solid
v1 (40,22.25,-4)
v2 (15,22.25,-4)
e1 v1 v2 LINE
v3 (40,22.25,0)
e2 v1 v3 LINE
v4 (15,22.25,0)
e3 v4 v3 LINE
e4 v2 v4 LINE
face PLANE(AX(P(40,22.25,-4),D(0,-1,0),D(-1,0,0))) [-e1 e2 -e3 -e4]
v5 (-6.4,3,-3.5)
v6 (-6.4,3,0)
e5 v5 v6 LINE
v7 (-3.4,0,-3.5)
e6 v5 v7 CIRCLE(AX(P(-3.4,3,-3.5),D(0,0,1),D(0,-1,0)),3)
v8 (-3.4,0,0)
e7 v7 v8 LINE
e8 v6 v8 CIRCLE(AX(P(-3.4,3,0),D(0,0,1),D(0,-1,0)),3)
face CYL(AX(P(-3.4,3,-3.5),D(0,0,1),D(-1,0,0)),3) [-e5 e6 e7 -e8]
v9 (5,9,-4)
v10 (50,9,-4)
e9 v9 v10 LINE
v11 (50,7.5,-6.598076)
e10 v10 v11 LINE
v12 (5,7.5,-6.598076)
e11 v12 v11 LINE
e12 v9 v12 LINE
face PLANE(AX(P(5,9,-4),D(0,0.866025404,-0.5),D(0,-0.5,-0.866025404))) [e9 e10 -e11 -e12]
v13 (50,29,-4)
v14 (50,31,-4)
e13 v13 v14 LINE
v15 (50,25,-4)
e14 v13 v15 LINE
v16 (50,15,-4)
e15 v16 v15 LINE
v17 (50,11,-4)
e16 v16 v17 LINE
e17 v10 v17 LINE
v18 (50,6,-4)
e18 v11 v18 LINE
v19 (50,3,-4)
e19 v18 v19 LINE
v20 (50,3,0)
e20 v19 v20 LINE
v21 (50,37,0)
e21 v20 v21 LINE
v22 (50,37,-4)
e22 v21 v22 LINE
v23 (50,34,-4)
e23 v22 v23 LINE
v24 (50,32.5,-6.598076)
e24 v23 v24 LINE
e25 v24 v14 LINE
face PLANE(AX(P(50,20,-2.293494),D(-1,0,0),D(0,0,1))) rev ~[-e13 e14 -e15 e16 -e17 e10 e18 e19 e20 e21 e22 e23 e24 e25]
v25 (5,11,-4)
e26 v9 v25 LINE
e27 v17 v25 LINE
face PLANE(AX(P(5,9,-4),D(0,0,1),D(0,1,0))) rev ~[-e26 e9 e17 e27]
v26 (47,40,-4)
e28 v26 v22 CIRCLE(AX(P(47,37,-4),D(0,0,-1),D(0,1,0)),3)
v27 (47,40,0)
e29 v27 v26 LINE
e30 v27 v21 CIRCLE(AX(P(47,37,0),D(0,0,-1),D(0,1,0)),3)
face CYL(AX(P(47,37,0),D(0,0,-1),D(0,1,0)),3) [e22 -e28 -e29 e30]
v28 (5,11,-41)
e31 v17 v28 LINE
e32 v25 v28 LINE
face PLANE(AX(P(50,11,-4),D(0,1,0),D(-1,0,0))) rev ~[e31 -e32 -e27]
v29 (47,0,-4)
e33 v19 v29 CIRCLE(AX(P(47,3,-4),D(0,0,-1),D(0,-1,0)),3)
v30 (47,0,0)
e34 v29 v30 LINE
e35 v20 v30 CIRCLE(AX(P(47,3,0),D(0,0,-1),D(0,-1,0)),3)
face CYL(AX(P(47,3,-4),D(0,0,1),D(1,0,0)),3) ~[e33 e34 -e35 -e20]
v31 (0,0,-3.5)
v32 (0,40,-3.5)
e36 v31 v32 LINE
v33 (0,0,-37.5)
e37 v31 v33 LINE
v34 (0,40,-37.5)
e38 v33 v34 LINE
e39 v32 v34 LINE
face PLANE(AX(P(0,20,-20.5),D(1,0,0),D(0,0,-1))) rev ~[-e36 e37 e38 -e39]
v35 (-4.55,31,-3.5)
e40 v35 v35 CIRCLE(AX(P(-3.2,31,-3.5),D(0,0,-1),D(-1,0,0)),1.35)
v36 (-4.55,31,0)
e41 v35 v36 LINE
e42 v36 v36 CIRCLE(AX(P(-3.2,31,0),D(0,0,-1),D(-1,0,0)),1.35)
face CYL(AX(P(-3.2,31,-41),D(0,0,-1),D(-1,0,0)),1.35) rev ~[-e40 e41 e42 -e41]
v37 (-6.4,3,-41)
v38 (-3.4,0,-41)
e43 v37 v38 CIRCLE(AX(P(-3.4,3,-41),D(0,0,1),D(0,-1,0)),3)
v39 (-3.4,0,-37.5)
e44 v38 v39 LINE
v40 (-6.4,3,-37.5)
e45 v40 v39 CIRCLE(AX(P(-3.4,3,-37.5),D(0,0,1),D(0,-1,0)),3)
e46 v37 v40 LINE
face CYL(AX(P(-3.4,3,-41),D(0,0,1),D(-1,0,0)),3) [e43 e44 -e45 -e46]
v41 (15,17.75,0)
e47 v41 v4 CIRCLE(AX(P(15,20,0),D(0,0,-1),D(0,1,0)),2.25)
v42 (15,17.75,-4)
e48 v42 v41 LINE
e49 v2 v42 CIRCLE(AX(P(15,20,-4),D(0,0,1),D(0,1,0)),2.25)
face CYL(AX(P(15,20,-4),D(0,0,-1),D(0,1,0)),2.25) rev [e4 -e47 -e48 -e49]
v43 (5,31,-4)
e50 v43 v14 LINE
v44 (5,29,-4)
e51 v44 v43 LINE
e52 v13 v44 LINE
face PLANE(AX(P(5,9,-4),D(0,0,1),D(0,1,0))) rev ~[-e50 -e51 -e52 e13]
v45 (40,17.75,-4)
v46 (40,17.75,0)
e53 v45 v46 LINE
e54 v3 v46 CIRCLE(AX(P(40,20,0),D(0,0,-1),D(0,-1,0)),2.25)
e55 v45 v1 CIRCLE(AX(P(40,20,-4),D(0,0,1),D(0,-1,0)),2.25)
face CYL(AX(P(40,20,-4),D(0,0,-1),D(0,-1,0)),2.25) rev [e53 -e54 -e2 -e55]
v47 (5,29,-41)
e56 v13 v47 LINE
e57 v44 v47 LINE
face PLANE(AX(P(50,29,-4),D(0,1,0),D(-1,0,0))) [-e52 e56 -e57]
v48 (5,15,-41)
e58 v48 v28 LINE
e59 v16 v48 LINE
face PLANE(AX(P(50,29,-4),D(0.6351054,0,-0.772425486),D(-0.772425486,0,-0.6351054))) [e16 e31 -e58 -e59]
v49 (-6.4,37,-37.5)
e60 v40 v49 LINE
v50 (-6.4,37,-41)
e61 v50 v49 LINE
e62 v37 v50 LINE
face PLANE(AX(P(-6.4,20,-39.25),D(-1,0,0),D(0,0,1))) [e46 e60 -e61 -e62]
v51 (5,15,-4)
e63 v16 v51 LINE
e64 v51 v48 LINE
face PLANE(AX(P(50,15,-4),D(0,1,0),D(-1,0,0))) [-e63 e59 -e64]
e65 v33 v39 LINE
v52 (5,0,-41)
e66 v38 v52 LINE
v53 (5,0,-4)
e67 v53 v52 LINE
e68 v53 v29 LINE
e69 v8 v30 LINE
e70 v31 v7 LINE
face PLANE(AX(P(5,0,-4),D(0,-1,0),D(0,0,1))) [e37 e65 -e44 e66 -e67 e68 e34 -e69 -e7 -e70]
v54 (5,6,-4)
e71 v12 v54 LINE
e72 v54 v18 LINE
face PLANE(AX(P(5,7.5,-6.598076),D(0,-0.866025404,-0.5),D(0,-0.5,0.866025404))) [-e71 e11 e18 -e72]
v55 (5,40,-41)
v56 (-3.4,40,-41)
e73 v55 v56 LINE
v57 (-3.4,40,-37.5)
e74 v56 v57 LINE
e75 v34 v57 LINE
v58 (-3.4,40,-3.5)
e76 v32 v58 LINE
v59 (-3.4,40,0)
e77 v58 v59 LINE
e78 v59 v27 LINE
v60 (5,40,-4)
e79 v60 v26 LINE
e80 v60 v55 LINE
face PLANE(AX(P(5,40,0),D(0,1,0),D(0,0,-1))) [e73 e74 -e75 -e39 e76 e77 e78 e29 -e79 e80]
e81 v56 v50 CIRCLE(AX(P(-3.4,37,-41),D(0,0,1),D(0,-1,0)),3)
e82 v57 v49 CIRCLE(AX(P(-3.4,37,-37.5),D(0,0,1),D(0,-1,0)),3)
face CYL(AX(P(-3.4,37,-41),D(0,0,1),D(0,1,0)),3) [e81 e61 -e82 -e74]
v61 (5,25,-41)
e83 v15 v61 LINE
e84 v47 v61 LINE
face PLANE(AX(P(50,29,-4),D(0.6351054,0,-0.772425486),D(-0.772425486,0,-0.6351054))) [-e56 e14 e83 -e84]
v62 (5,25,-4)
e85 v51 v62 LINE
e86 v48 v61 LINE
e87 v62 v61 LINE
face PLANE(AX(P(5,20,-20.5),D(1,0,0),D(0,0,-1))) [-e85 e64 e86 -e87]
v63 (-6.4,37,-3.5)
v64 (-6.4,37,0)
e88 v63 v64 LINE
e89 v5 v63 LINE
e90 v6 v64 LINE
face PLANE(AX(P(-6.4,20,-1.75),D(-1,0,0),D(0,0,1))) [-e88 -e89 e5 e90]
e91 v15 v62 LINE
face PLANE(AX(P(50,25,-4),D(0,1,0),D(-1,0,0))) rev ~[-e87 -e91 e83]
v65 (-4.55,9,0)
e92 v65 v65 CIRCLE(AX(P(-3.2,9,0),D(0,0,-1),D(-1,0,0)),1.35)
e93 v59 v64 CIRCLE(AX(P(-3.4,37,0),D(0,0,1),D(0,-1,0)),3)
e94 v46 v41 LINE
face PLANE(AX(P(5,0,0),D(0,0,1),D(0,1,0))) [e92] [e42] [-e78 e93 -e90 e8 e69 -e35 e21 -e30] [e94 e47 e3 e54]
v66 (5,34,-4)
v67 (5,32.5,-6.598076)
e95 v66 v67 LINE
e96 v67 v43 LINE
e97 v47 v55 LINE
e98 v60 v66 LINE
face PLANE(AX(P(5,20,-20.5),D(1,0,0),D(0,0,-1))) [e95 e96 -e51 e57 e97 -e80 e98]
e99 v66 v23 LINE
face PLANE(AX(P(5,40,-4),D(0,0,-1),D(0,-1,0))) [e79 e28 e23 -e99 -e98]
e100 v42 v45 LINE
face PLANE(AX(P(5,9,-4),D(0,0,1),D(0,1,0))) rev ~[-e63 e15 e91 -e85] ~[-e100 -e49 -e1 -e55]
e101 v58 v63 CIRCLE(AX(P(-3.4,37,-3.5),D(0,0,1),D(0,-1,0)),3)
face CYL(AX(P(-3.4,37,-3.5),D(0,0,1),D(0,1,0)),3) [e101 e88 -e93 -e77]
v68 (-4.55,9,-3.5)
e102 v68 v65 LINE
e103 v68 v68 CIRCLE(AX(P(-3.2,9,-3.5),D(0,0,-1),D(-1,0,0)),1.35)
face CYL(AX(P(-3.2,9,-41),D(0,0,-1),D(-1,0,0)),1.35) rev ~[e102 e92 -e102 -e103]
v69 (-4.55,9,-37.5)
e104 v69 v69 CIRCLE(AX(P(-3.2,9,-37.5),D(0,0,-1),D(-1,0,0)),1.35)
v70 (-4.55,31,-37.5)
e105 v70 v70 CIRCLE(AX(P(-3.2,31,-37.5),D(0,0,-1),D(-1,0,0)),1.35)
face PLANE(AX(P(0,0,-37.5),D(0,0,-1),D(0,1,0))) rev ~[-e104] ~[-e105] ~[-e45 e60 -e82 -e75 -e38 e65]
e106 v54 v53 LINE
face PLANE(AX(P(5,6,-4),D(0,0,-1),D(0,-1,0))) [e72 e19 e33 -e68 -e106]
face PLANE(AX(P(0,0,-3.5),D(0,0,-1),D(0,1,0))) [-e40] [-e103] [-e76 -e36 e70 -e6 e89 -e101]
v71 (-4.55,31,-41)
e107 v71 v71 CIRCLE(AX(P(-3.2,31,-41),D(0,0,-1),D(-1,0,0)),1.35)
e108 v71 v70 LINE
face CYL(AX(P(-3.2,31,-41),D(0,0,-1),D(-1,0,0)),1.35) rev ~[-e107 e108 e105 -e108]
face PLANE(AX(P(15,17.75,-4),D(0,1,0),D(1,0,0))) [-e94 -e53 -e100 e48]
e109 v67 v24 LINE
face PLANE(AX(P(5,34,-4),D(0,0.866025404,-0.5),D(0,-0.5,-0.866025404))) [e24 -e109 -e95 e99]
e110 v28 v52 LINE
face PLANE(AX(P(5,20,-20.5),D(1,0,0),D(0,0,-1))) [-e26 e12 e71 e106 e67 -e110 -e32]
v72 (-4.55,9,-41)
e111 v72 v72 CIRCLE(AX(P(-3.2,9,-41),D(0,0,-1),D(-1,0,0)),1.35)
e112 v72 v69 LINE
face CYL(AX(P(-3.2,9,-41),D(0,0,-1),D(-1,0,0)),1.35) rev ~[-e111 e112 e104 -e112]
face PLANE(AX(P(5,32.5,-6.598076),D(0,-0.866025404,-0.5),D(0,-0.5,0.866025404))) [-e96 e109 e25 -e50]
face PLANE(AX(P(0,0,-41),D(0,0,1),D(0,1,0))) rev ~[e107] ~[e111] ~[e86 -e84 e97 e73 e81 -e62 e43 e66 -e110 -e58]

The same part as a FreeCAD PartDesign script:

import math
import FreeCAD as App
import Part
import Sketcher

V = App.Vector
Q = App.Units.Quantity


def edges_at(feature, points):
    """Names of the edges that pass closest to the given points."""
    edges = feature.Shape.Edges
    near = lambda p: min(range(len(edges)), key=lambda i: edges[i].distToShape(Part.Vertex(*p))[0])
    return sorted({f"Edge{near(p) + 1}" for p in points})


def add_polygon(sketch, points):
    """Adds a closed chain of lines whose ends are joined by coincident constraints."""
    first, n = sketch.GeometryCount, len(points)
    for a, b in zip(points, points[1:] + points[:1]):
        sketch.addGeometry(Part.LineSegment(App.Vector(*a, 0), App.Vector(*b, 0)), False)
    for i in range(n):
        sketch.addConstraint(Sketcher.Constraint("Coincident", first + i, 2, first + (i + 1) % n, 1))

doc = App.newDocument("Part")
body = doc.addObject("PartDesign::Body", "Body")

# Sketch on YZ plane
sketch1 = doc.addObject("Sketcher::SketchObject", "Sketch")
body.addObject(sketch1)
sketch1.AttachmentSupport = (doc.YZ_Plane, [""])
sketch1.MapMode = "FlatFace"
add_polygon(sketch1, [(40, 0), (0, 0), (0, -41), (40, -41)])  # lines 0-3
sketch1.addConstraint(Sketcher.Constraint("Horizontal", 0))
sketch1.addConstraint(Sketcher.Constraint("Vertical", 1))
sketch1.addConstraint(Sketcher.Constraint("Horizontal", 2))
sketch1.addConstraint(Sketcher.Constraint("Vertical", 3))
sketch1.addConstraint(Sketcher.Constraint("Coincident", 0, 2, -1, 1))
sketch1.addConstraint(Sketcher.Constraint("DistanceX", 0, 2, 0, 1, 40.0))
sketch1.addConstraint(Sketcher.Constraint("DistanceY", 1, 2, 1, 1, 41.0))
pad1 = doc.addObject("PartDesign::Pad", "Pad")
body.addObject(pad1)
pad1.Profile = sketch1
pad1.Length = 5

# Sketch on YZ plane
sketch2 = doc.addObject("Sketcher::SketchObject", "Sketch001")
body.addObject(sketch2)
sketch2.AttachmentSupport = (doc.YZ_Plane, [""])
sketch2.MapMode = "FlatFace"
add_polygon(sketch2, [(40, -3.5), (0, -3.5), (0, 0), (40, 0)])  # lines 0-3
add_polygon(sketch2, [(40, -41), (0, -41), (0, -37.5), (40, -37.5)])  # lines 4-7
sketch2.addConstraint(Sketcher.Constraint("Horizontal", 0))
sketch2.addConstraint(Sketcher.Constraint("Vertical", 1))
sketch2.addConstraint(Sketcher.Constraint("Horizontal", 2))
sketch2.addConstraint(Sketcher.Constraint("Vertical", 3))
sketch2.addConstraint(Sketcher.Constraint("Horizontal", 4))
sketch2.addConstraint(Sketcher.Constraint("Vertical", 5))
sketch2.addConstraint(Sketcher.Constraint("Horizontal", 6))
sketch2.addConstraint(Sketcher.Constraint("Vertical", 7))
sketch2.addConstraint(Sketcher.Constraint("Coincident", 1, 2, -1, 1))
sketch2.addConstraint(Sketcher.Constraint("PointOnObject", 4, 2, -2))
sketch2.addConstraint(Sketcher.Constraint("Vertical", 3, 2, 6, 2))
sketch2.addConstraint(Sketcher.Constraint("Equal", 3, 5))
sketch2.addConstraint(Sketcher.Constraint("DistanceX", 0, 2, 0, 1, 40.0))
sketch2.addConstraint(Sketcher.Constraint("DistanceY", 1, 1, 1, 2, 3.5))
sketch2.addConstraint(Sketcher.Constraint("DistanceY", 4, 2, -1, 1, 41.0))
pad2 = doc.addObject("PartDesign::Pad", "Pad001")
body.addObject(pad2)
pad2.Profile = sketch2
pad2.Length = 6.4
pad2.Reversed = True

# Sketch on YZ plane
sketch3 = doc.addObject("Sketcher::SketchObject", "Sketch002")
body.addObject(sketch3)
sketch3.AttachmentSupport = (doc.YZ_Plane, [""])
sketch3.MapMode = "FlatFace"
sketch3.AttachmentOffset = App.Placement(V(0, 0, 5), App.Rotation())
add_polygon(sketch3, [(40, -4), (40, 0), (0, 0), (0, -4), (6, -4), (7.5, -6.6), (9, -4), (31, -4), (32.5, -6.6), (34, -4)])  # lines 0-9
sketch3.addConstraint(Sketcher.Constraint("Vertical", 0))
sketch3.addConstraint(Sketcher.Constraint("Horizontal", 1))
sketch3.addConstraint(Sketcher.Constraint("Vertical", 2))
sketch3.addConstraint(Sketcher.Constraint("Horizontal", 3))
sketch3.addConstraint(Sketcher.Constraint("Horizontal", 6))
sketch3.addConstraint(Sketcher.Constraint("Horizontal", 9))
sketch3.addConstraint(Sketcher.Constraint("Coincident", 1, 2, -1, 1))
sketch3.addConstraint(Sketcher.Constraint("Parallel", 4, 7))
sketch3.addConstraint(Sketcher.Constraint("Parallel", 5, 8))
sketch3.addConstraint(Sketcher.Constraint("Horizontal", 3, 2, 5, 2))
sketch3.addConstraint(Sketcher.Constraint("Horizontal", 4, 2, 7, 2))
sketch3.addConstraint(Sketcher.Constraint("Horizontal", 6, 2, 8, 2))
sketch3.addConstraint(Sketcher.Constraint("Equal", 3, 9))
sketch3.addConstraint(Sketcher.Constraint("Equal", 4, 5))
sketch3.addConstraint(Sketcher.Constraint("DistanceX", 1, 2, 1, 1, 40.0))
sketch3.addConstraint(Sketcher.Constraint("DistanceX", 3, 1, 3, 2, 6.0))
sketch3.addConstraint(Sketcher.Constraint("DistanceX", 6, 1, 6, 2, 22.0))
sketch3.addConstraint(Sketcher.Constraint("DistanceY", 0, 1, 0, 2, 4.0))
sketch3.addConstraint(Sketcher.Constraint("Angle", 4, Q("-60 deg")))
pad3 = doc.addObject("PartDesign::Pad", "Pad002")
body.addObject(pad3)
pad3.Profile = sketch3
pad3.Length = 45

# Sketch on XY plane
sketch4 = doc.addObject("Sketcher::SketchObject", "Sketch003")
body.addObject(sketch4)
sketch4.AttachmentSupport = (doc.XY_Plane, [""])
sketch4.MapMode = "FlatFace"
sketch4.AttachmentOffset = App.Placement(V(0, 0, -4), App.Rotation())
add_polygon(sketch4, [(50, 29), (50, 25), (5, 25), (5, 29)])  # lines 0-3
add_polygon(sketch4, [(50, 15), (50, 11), (5, 11), (5, 15)])  # lines 4-7
sketch4.addConstraint(Sketcher.Constraint("Vertical", 0))
sketch4.addConstraint(Sketcher.Constraint("Horizontal", 1))
sketch4.addConstraint(Sketcher.Constraint("Vertical", 2))
sketch4.addConstraint(Sketcher.Constraint("Horizontal", 3))
sketch4.addConstraint(Sketcher.Constraint("Vertical", 4))
sketch4.addConstraint(Sketcher.Constraint("Horizontal", 5))
sketch4.addConstraint(Sketcher.Constraint("Vertical", 6))
sketch4.addConstraint(Sketcher.Constraint("Horizontal", 7))
sketch4.addConstraint(Sketcher.Constraint("Vertical", 3, 2, 4, 2))
sketch4.addConstraint(Sketcher.Constraint("Vertical", 2, 2, 5, 2))
sketch4.addConstraint(Sketcher.Constraint("Equal", 2, 4))
sketch4.addConstraint(Sketcher.Constraint("DistanceX", 1, 2, 1, 1, 45.0))
sketch4.addConstraint(Sketcher.Constraint("DistanceY", 0, 2, 0, 1, 4.0))
sketch4.addConstraint(Sketcher.Constraint("DistanceX", -1, 1, 0, 2, 50.0))
sketch4.addConstraint(Sketcher.Constraint("DistanceY", -1, 1, 0, 2, 25.0))
sketch4.addConstraint(Sketcher.Constraint("DistanceY", -1, 1, 4, 2, 11.0))
pad4 = doc.addObject("PartDesign::Pad", "Pad003")
body.addObject(pad4)
pad4.Profile = sketch4
pad4.Length = 37
pad4.Reversed = True

# Sketch on XZ plane
sketch5 = doc.addObject("Sketcher::SketchObject", "Sketch004")
body.addObject(sketch5)
sketch5.AttachmentSupport = (doc.XZ_Plane, [""])
sketch5.MapMode = "FlatFace"
sketch5.AttachmentOffset = App.Placement(V(0, 0, -29), App.Rotation())
add_polygon(sketch5, [(5, -41), (50, -4), (50, -41)])  # lines 0-2
sketch5.addConstraint(Sketcher.Constraint("Vertical", 1))
sketch5.addConstraint(Sketcher.Constraint("Horizontal", 2))
sketch5.addConstraint(Sketcher.Constraint("DistanceX", 2, 2, 2, 1, 45.0))
sketch5.addConstraint(Sketcher.Constraint("DistanceY", 1, 2, 1, 1, 37.0))
sketch5.addConstraint(Sketcher.Constraint("DistanceX", -1, 1, 0, 2, 50.0))
sketch5.addConstraint(Sketcher.Constraint("DistanceY", 0, 2, -1, 1, 4.0))
pocket1 = doc.addObject("PartDesign::Pocket", "Pocket")
body.addObject(pocket1)
pocket1.Profile = sketch5
pocket1.Length = 19
pocket1.Reversed = True

# Sketch on XY plane
sketch6 = doc.addObject("Sketcher::SketchObject", "Sketch005")
body.addObject(sketch6)
sketch6.AttachmentSupport = (doc.XY_Plane, [""])
sketch6.MapMode = "FlatFace"
sketch6.AttachmentOffset = App.Placement(V(0, 0, -41), App.Rotation())
sketch6.addGeometry(Part.Circle(V(-3.2, 9, 0), V(0, 0, 1), 1.4), False)
sketch6.addGeometry(Part.Circle(V(-3.2, 31, 0), V(0, 0, 1), 1.4), False)
sketch6.addConstraint(Sketcher.Constraint("Equal", 0, 1))
sketch6.addConstraint(Sketcher.Constraint("Vertical", 0, 3, 1, 3))
sketch6.addConstraint(Sketcher.Constraint("Diameter", 0, 2.7))
sketch6.addConstraint(Sketcher.Constraint("DistanceY", -1, 1, 0, 3, 9.0))
sketch6.addConstraint(Sketcher.Constraint("DistanceY", -1, 1, 1, 3, 31.0))
sketch6.addConstraint(Sketcher.Constraint("DistanceX", 0, 3, -1, 1, 3.2))
pocket2 = doc.addObject("PartDesign::Pocket", "Pocket001")
body.addObject(pocket2)
pocket2.Profile = sketch6
pocket2.Type = "ThroughAll"
pocket2.Reversed = True
doc.recompute()

fillet = doc.addObject("PartDesign::Fillet", "Fillet")
body.addObject(fillet)
fillet.Base = (pocket2, edges_at(pocket2, [(50, 0, -2), (50, 40, -2)]))
fillet.Radius = 3
doc.recompute()

fillet2 = doc.addObject("PartDesign::Fillet", "Fillet001")
body.addObject(fillet2)
fillet2.Base = (fillet, edges_at(fillet, [
    (-6.4, 0, -1.75),
    (-6.4, 40, -1.75),
    (-6.4, 40, -39.25),
    (-6.4, 0, -39.25),
]))
fillet2.Radius = 3

# Sketch on XY plane
sketch7 = doc.addObject("Sketcher::SketchObject", "Sketch006")
body.addObject(sketch7)
sketch7.AttachmentSupport = (doc.XY_Plane, [""])
sketch7.MapMode = "FlatFace"
sketch7.AttachmentOffset = App.Placement(V(0, 0, -4), App.Rotation())
sketch7.addGeometry(Part.LineSegment(V(15, 22.2, 0), V(40, 22.2, 0)), False)
sketch7.addGeometry(Part.ArcOfCircle(Part.Circle(V(40, 20, 0), V(0, 0, 1), 2.2), math.radians(-90), math.radians(90)), False)
sketch7.addGeometry(Part.LineSegment(V(40, 17.8, 0), V(15, 17.8, 0)), False)
sketch7.addGeometry(Part.ArcOfCircle(Part.Circle(V(15, 20, 0), V(0, 0, 1), 2.2), math.radians(90), math.radians(270)), False)
sketch7.addConstraint(Sketcher.Constraint("Tangent", 0, 2, 1, 2))
sketch7.addConstraint(Sketcher.Constraint("Tangent", 1, 1, 2, 1))
sketch7.addConstraint(Sketcher.Constraint("Tangent", 2, 2, 3, 2))
sketch7.addConstraint(Sketcher.Constraint("Tangent", 3, 1, 0, 1))
sketch7.addConstraint(Sketcher.Constraint("Horizontal", 0))
sketch7.addConstraint(Sketcher.Constraint("Horizontal", 2))
sketch7.addConstraint(Sketcher.Constraint("DistanceX", 0, 1, 0, 2, 25.0))
sketch7.addConstraint(Sketcher.Constraint("Radius", 1, 2.25))
sketch7.addConstraint(Sketcher.Constraint("DistanceX", -1, 1, 1, 3, 40.0))
sketch7.addConstraint(Sketcher.Constraint("DistanceY", -1, 1, 1, 3, 20.0))
pocket3 = doc.addObject("PartDesign::Pocket", "Pocket002")
body.addObject(pocket3)
pocket3.Profile = sketch7
pocket3.Type = "ThroughAll"
pocket3.Midplane = True

doc.recompute()
